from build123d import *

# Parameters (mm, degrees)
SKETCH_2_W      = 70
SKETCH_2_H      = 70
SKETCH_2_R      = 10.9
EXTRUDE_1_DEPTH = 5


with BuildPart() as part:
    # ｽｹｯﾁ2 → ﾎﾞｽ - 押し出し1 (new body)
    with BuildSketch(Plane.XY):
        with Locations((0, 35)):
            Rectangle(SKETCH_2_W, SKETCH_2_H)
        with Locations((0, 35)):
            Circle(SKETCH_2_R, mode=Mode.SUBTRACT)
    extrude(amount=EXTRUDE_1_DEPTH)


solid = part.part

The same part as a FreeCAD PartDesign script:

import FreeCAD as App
import Part
import Sketcher
from FreeCAD import Vector
Q = App.Units.Quantity


def add_polygon(sketch, points):
    """Adds a closed chain of lines whose ends are joined by coincident constraints."""
    first, n = sketch.GeometryCount, len(points)
    for a, b in zip(points, points[1:] + points[:1]):
        sketch.addGeometry(Part.LineSegment(App.Vector(*a, 0), App.Vector(*b, 0)), False)
    for i in range(n):
        sketch.addConstraint(Sketcher.Constraint("Coincident", first + i, 2, first + (i + 1) % n, 1))

doc = App.newDocument("Part")
body = doc.addObject("PartDesign::Body", "Body")

sketch1 = body.newObject("Sketcher::SketchObject", "Sketch")
sketch1.AttachmentSupport = (doc.getObject("XY_Plane"), [""])
sketch1.MapMode = "FlatFace"
add_polygon(sketch1, [(-35, 70), (-35, 0), (35, 0), (35, 70)])
sketch1.addGeometry(Part.Circle(Vector(0, 35, 0), Vector(0, 0, 1), 11), False)
sketch1.addConstraint([
    Sketcher.Constraint("Vertical", 0),
    Sketcher.Constraint("Horizontal", 1),
    Sketcher.Constraint("Vertical", 2),
    Sketcher.Constraint("Horizontal", 3),
    Sketcher.Constraint("Symmetric", 0, 2, 1, 2, -1, 1),
    Sketcher.Constraint("PointOnObject", 4, 3, -2),
    Sketcher.Constraint("Equal", 3, 0),
    Sketcher.Constraint("Diameter", 4, Q("21.8 mm")),
    Sketcher.Constraint("DistanceX", 1, 1, 1, 2, Q("70 mm")),
    Sketcher.Constraint("DistanceY", -1, 1, 4, 3, Q("35 mm")),
])
pad1 = body.newObject("PartDesign::Pad", "Pad")
pad1.Profile = sketch1
pad1.Length = 5

doc.recompute()
